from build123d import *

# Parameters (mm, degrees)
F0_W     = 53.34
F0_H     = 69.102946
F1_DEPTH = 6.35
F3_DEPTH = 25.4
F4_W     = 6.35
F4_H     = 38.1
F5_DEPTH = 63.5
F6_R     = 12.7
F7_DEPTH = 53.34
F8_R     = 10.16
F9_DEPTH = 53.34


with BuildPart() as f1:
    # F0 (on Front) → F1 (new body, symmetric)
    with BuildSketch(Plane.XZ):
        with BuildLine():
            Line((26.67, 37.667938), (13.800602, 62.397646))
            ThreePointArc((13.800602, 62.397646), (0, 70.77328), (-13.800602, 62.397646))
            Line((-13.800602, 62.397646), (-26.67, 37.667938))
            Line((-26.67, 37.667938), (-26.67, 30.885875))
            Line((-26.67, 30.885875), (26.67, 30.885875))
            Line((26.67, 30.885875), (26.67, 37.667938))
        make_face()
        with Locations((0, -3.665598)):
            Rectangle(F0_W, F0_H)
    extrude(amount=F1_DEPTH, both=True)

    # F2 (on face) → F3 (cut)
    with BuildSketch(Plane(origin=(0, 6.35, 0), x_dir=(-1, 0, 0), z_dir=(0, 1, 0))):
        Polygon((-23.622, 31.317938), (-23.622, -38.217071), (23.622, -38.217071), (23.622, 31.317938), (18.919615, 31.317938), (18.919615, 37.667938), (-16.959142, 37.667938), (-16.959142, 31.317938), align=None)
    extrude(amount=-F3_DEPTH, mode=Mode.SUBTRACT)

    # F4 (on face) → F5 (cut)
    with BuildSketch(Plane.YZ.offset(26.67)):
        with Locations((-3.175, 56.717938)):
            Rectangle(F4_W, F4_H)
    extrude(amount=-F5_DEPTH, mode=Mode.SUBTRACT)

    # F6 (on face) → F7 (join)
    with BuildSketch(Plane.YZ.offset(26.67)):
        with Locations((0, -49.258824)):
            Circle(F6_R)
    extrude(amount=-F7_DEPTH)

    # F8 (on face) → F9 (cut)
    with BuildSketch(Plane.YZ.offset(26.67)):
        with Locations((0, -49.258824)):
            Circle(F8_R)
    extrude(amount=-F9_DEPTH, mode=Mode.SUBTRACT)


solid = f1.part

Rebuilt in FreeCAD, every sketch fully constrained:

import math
import FreeCAD as App
import Part
import Sketcher
Q = App.Units.Quantity


def add_polygon(sketch, points):
    """Adds a closed chain of lines whose ends are joined by coincident constraints."""
    first, n = sketch.GeometryCount, len(points)
    for a, b in zip(points, points[1:] + points[:1]):
        sketch.addGeometry(Part.LineSegment(App.Vector(*a, 0), App.Vector(*b, 0)), False)
    for i in range(n):
        sketch.addConstraint(Sketcher.Constraint("Coincident", first + i, 2, first + (i + 1) % n, 1))

doc = App.newDocument("Part")
body = doc.addObject("PartDesign::Body", "Body")

# Sketch on XZ plane
sketch1 = body.newObject("Sketcher::SketchObject", "Sketch")
sketch1.AttachmentSupport = (doc.getObject("XZ_Plane"), [""])
sketch1.MapMode = "FlatFace"
sketch1.addGeometry([
    Part.LineSegment(App.Vector(26.67, 37.667938, 0), App.Vector(13.800602, 62.397646, 0)),  # 0
    Part.ArcOfCircle(Part.Circle(App.Vector(0, 55.215779, 0), App.Vector(0, 0, 1), 15.557501), math.radians(27.492577), math.radians(152.507423)),  # 1
    Part.LineSegment(App.Vector(-13.800602, 62.397646, 0), App.Vector(-26.67, 37.667938, 0)),  # 2
    Part.LineSegment(App.Vector(-26.67, 37.667938, 0), App.Vector(-26.67, -38.217071, 0)),  # 3
    Part.LineSegment(App.Vector(-26.67, -38.217071, 0), App.Vector(26.67, -38.217071, 0)),  # 4
    Part.LineSegment(App.Vector(26.67, -38.217071, 0), App.Vector(26.67, 37.667938, 0)),  # 5
], False)
sketch1.addConstraint([
    Sketcher.Constraint("Tangent", 0, 2, 1, 1),
    Sketcher.Constraint("Tangent", 1, 2, 2, 1),
    Sketcher.Constraint("Coincident", 2, 2, 3, 1),
    Sketcher.Constraint("Coincident", 3, 2, 4, 1),
    Sketcher.Constraint("Coincident", 4, 2, 5, 1),
    Sketcher.Constraint("Coincident", 5, 2, 0, 1),
    Sketcher.Constraint("Vertical", 3),
    Sketcher.Constraint("Horizontal", 4),
    Sketcher.Constraint("Vertical", 5),
    Sketcher.Constraint("Symmetric", 0, 2, 1, 2, -2),
    Sketcher.Constraint("Horizontal", 2, 2, 5, 2),
    Sketcher.Constraint("DistanceX", 4, 1, 4, 2, Q("2.1 in")),
    Sketcher.Constraint("Radius", 1, Q("0.6125 in")),
    Sketcher.Constraint("DistanceY", 3, 2, 3, 1, Q("75.885009 mm")),
    Sketcher.Constraint("DistanceX", 0, 2, 4, 2, Q("12.869398 mm")),
    Sketcher.Constraint("DistanceY", -1, 1, 1, 3, Q("55.215779 mm")),
])
pad1 = body.newObject("PartDesign::Pad", "Pad")
pad1.Profile = sketch1
pad1.Length = Q("0.5 in")
pad1.Midplane = True

# Sketch on XZ plane
sketch2 = body.newObject("Sketcher::SketchObject", "Sketch001")
sketch2.AttachmentSupport = (doc.getObject("XZ_Plane"), [""])
sketch2.MapMode = "FlatFace"
sketch2.AttachmentOffset = App.Placement(App.Vector(0, 0, -0.25 * 25.4), App.Rotation())
add_polygon(sketch2, [(23.622, 31.317938), (23.622, -38.217071), (-23.622, -38.217071), (-23.622, 31.317938), (-18.919615, 31.317938), (-18.919615, 37.667938), (16.959142, 37.667938), (16.959142, 31.317938)])  # lines 0-7
sketch2.addConstraint([
    Sketcher.Constraint("Vertical", 0),
    Sketcher.Constraint("Horizontal", 1),
    Sketcher.Constraint("Vertical", 2),
    Sketcher.Constraint("Horizontal", 3),
    Sketcher.Constraint("Vertical", 4),
    Sketcher.Constraint("Horizontal", 5),
    Sketcher.Constraint("Vertical", 6),
    Sketcher.Constraint("Horizontal", 7),
    Sketcher.Constraint("Symmetric", 2, 2, 7, 2, -2),
    Sketcher.Constraint("DistanceX", 1, 2, 1, 1, Q("1.86 in")),
    Sketcher.Constraint("DistanceY", 4, 1, 4, 2, Q("0.25 in")),
    Sketcher.Constraint("DistanceY", 0, 2, 0, 1, Q("69.535009 mm")),
    Sketcher.Constraint("DistanceX", 3, 1, 3, 2, Q("4.702385 mm")),
    Sketcher.Constraint("DistanceX", 5, 1, 5, 2, Q("35.878757 mm")),
    Sketcher.Constraint("DistanceY", 0, 2, -1, 1, Q("38.217071 mm")),
])
pocket1 = body.newObject("PartDesign::Pocket", "Pocket")
pocket1.Profile = sketch2
pocket1.Length = Q("1 in")
pocket1.Reversed = True

# Sketch on YZ plane
sketch3 = body.newObject("Sketcher::SketchObject", "Sketch002")
sketch3.AttachmentSupport = (doc.getObject("YZ_Plane"), [""])
sketch3.MapMode = "FlatFace"
sketch3.AttachmentOffset = App.Placement(App.Vector(0, 0, 1.05 * 25.4), App.Rotation())
add_polygon(sketch3, [(-6.35, 75.767938), (-6.35, 37.667938), (0, 37.667938), (0, 75.767938)])  # lines 0-3
sketch3.addConstraint([
    Sketcher.Constraint("Vertical", 0),
    Sketcher.Constraint("Horizontal", 1),
    Sketcher.Constraint("Vertical", 2),
    Sketcher.Constraint("Horizontal", 3),
    Sketcher.Constraint("PointOnObject", 1, 2, -2),
    Sketcher.Constraint("DistanceY", 0, 2, 0, 1, Q("1.5 in")),
    Sketcher.Constraint("DistanceX", 1, 1, 1, 2, Q("0.25 in")),
    Sketcher.Constraint("DistanceY", -1, 1, 2, 2, Q("75.767938 mm")),
])
pocket2 = body.newObject("PartDesign::Pocket", "Pocket001")
pocket2.Profile = sketch3
pocket2.Length = Q("2.5 in")

# Sketch on YZ plane
sketch4 = body.newObject("Sketcher::SketchObject", "Sketch003")
sketch4.AttachmentSupport = (doc.getObject("YZ_Plane"), [""])
sketch4.MapMode = "FlatFace"
sketch4.AttachmentOffset = App.Placement(App.Vector(0, 0, 1.05 * 25.4), App.Rotation())
sketch4.addGeometry(Part.Circle(App.Vector(0, -49.258824, 0), App.Vector(0, 0, 1), 12.7), False)
sketch4.addConstraint([
    Sketcher.Constraint("PointOnObject", 0, 3, -2),
    Sketcher.Constraint("Diameter", 0, Q("1 in")),
    Sketcher.Constraint("DistanceY", 0, 3, -1, 1, Q("49.258824 mm")),
])
pad2 = body.newObject("PartDesign::Pad", "Pad001")
pad2.Profile = sketch4
pad2.Length = Q("2.1 in")
pad2.Reversed = True

# Sketch on YZ plane
sketch5 = body.newObject("Sketcher::SketchObject", "Sketch004")
sketch5.AttachmentSupport = (doc.getObject("YZ_Plane"), [""])
sketch5.MapMode = "FlatFace"
sketch5.AttachmentOffset = App.Placement(App.Vector(0, 0, 1.05 * 25.4), App.Rotation())
sketch5.addGeometry(Part.Circle(App.Vector(0, -49.258824, 0), App.Vector(0, 0, 1), 10.16), False)
sketch5.addConstraint([
    Sketcher.Constraint("PointOnObject", 0, 3, -2),
    Sketcher.Constraint("Diameter", 0, Q("0.8 in")),
    Sketcher.Constraint("DistanceY", 0, 3, -1, 1, Q("49.258824 mm")),
])
pocket3 = body.newObject("PartDesign::Pocket", "Pocket002")
pocket3.Profile = sketch5
pocket3.Length = Q("2.1 in")

doc.recompute()
